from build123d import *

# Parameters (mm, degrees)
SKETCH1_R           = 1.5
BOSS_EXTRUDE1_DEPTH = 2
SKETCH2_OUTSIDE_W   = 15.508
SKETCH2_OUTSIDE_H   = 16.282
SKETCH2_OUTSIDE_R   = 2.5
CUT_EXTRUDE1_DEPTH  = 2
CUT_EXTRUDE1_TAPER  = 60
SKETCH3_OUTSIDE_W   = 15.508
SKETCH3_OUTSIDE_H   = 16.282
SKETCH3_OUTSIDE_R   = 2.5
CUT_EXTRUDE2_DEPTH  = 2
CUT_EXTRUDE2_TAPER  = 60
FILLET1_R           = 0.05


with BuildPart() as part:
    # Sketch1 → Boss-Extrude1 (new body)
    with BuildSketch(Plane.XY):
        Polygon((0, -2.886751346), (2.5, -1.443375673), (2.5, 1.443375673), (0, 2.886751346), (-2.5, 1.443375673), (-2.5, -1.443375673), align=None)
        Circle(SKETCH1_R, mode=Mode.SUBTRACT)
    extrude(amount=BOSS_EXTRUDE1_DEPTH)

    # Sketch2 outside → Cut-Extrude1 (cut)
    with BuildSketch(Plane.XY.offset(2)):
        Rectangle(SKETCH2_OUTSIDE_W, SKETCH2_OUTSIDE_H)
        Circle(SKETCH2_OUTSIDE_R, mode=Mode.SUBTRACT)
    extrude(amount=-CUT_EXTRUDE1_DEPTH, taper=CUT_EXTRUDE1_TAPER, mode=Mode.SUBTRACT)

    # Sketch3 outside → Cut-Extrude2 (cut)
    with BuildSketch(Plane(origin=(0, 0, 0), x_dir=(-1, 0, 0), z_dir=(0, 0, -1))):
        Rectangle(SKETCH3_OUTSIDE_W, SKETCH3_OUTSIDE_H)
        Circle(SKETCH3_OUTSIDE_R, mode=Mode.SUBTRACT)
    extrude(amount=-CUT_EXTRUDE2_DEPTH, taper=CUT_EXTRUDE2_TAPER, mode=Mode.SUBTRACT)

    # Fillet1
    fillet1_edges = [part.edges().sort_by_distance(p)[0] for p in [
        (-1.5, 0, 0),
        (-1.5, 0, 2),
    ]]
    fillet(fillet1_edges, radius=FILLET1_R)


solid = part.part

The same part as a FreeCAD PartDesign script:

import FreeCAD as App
import Part
import Sketcher
from FreeCAD import Vector
Q = App.Units.Quantity


def edges_at(feature, points):
    """Names of the edges that pass closest to the given points."""
    edges = feature.Shape.Edges
    near = lambda p: min(range(len(edges)), key=lambda i: edges[i].distToShape(Part.Vertex(*p))[0])
    return sorted({f"Edge{near(p) + 1}" for p in points})

doc = App.newDocument("Part")
body = doc.addObject("PartDesign::Body", "Body")

sketch1 = body.newObject("Sketcher::SketchObject", "Sketch")
sketch1.AttachmentSupport = (doc.getObject("XY_Plane"), [""])
sketch1.MapMode = "FlatFace"
sketch1.addGeometry([
    Part.LineSegment(Vector(0, -2.9, 0), Vector(2.5, -1.4, 0)),
    Part.LineSegment(Vector(2.5, -1.4, 0), Vector(2.5, 1.4, 0)),
    Part.LineSegment(Vector(2.5, 1.4, 0), Vector(0, 2.9, 0)),
    Part.LineSegment(Vector(0, 2.9, 0), Vector(-2.5, 1.4, 0)),
    Part.LineSegment(Vector(-2.5, 1.4, 0), Vector(-2.5, -1.4, 0)),
    Part.LineSegment(Vector(-2.5, -1.4, 0), Vector(0, -2.9, 0)),
    Part.Circle(Vector(0, 0, 0), Vector(0, 0, 1), 1.5),
], False)
sketch1.addConstraint([
    Sketcher.Constraint("Coincident", 0, 2, 1, 1),
    Sketcher.Constraint("Coincident", 1, 2, 2, 1),
    Sketcher.Constraint("Coincident", 2, 2, 3, 1),
    Sketcher.Constraint("Coincident", 3, 2, 4, 1),
    Sketcher.Constraint("Coincident", 4, 2, 5, 1),
    Sketcher.Constraint("Coincident", 5, 2, 0, 1),
    Sketcher.Constraint("Vertical", 1),
    Sketcher.Constraint("Vertical", 4),
    Sketcher.Constraint("Coincident", 6, 3, -1, 1),
    Sketcher.Constraint("Symmetric", 0, 2, 3, 2, -1, 1),
    Sketcher.Constraint("Symmetric", 2, 2, 5, 2, -1, 1),
    Sketcher.Constraint("PointOnObject", 2, 2, -2),
    Sketcher.Constraint("Parallel", 2, 5),
    Sketcher.Constraint("Horizontal", 1, 2, 3, 2),
    Sketcher.Constraint("Diameter", 6, Q("3 mm")),
    Sketcher.Constraint("Angle", 0, Q("30 deg")),
    Sketcher.Constraint("DistanceX", 3, 2, 1, 2, Q("5 mm")),
    Sketcher.Constraint("DistanceY", 1, 1, 1, 2, Q("2.886751 mm")),
])
pad1 = body.newObject("PartDesign::Pad", "Pad")
pad1.Profile = sketch1
pad1.Length = 2

sketch2 = body.newObject("Sketcher::SketchObject", "Sketch001")
sketch2.AttachmentSupport = (doc.getObject("XY_Plane"), [""])
sketch2.MapMode = "FlatFace"
sketch2.AttachmentOffset = App.Placement(Vector(0, 0, 2), App.Rotation())
sketch2.addGeometry([
    Part.LineSegment(Vector(-7.8, 8.1, 0), Vector(-7.8, -8.1, 0)),
    Part.LineSegment(Vector(-7.8, -8.1, 0), Vector(7.8, -8.1, 0)),
    Part.LineSegment(Vector(7.8, -8.1, 0), Vector(7.8, 8.1, 0)),
    Part.LineSegment(Vector(7.8, 8.1, 0), Vector(-7.8, 8.1, 0)),
    Part.Circle(Vector(0, 0, 0), Vector(0, 0, 1), 2.5),
], False)
sketch2.addConstraint([
    Sketcher.Constraint("Coincident", 0, 2, 1, 1),
    Sketcher.Constraint("Coincident", 1, 2, 2, 1),
    Sketcher.Constraint("Coincident", 2, 2, 3, 1),
    Sketcher.Constraint("Coincident", 3, 2, 0, 1),
    Sketcher.Constraint("Vertical", 0),
    Sketcher.Constraint("Horizontal", 1),
    Sketcher.Constraint("Vertical", 2),
    Sketcher.Constraint("Horizontal", 3),
    Sketcher.Constraint("Coincident", 4, 3, -1, 1),
    Sketcher.Constraint("Symmetric", 0, 2, 2, 2, -1, 1),
    Sketcher.Constraint("Diameter", 4, Q("5 mm")),
    Sketcher.Constraint("DistanceX", 1, 1, 1, 2, Q("15.508 mm")),
    Sketcher.Constraint("DistanceY", 0, 2, 0, 1, Q("16.282 mm")),
])
pocket1 = body.newObject("PartDesign::Pocket", "Pocket")
pocket1.Profile = sketch2
pocket1.Length = 2
pocket1.TaperAngle = 60

sketch3 = body.newObject("Sketcher::SketchObject", "Sketch002")
sketch3.AttachmentSupport = (doc.getObject("XY_Plane"), [""])
sketch3.MapMode = "FlatFace"
sketch3.addGeometry([
    Part.LineSegment(Vector(7.8, 8.1, 0), Vector(7.8, -8.1, 0)),
    Part.LineSegment(Vector(7.8, -8.1, 0), Vector(-7.8, -8.1, 0)),
    Part.LineSegment(Vector(-7.8, -8.1, 0), Vector(-7.8, 8.1, 0)),
    Part.LineSegment(Vector(-7.8, 8.1, 0), Vector(7.8, 8.1, 0)),
    Part.Circle(Vector(0, 0, 0), Vector(0, 0, 1), 2.5),
], False)
sketch3.addConstraint([
    Sketcher.Constraint("Coincident", 0, 2, 1, 1),
    Sketcher.Constraint("Coincident", 1, 2, 2, 1),
    Sketcher.Constraint("Coincident", 2, 2, 3, 1),
    Sketcher.Constraint("Coincident", 3, 2, 0, 1),
    Sketcher.Constraint("Vertical", 0),
    Sketcher.Constraint("Horizontal", 1),
    Sketcher.Constraint("Vertical", 2),
    Sketcher.Constraint("Horizontal", 3),
    Sketcher.Constraint("Coincident", 4, 3, -1, 1),
    Sketcher.Constraint("Symmetric", 0, 2, 2, 2, -1, 1),
    Sketcher.Constraint("Diameter", 4, Q("5 mm")),
    Sketcher.Constraint("DistanceX", 1, 2, 1, 1, Q("15.508 mm")),
    Sketcher.Constraint("DistanceY", 0, 2, 0, 1, Q("16.282 mm")),
])
pocket2 = body.newObject("PartDesign::Pocket", "Pocket001")
pocket2.Profile = sketch3
pocket2.Length = 2
pocket2.Reversed = True
pocket2.TaperAngle = 60
doc.recompute()

fillet = body.newObject("PartDesign::Fillet", "Fillet")
fillet.Base = (pocket2, edges_at(pocket2, [(-1.5, 0, 0), (-1.5, 0, 2)]))
fillet.Radius = 0.05

doc.recompute()
